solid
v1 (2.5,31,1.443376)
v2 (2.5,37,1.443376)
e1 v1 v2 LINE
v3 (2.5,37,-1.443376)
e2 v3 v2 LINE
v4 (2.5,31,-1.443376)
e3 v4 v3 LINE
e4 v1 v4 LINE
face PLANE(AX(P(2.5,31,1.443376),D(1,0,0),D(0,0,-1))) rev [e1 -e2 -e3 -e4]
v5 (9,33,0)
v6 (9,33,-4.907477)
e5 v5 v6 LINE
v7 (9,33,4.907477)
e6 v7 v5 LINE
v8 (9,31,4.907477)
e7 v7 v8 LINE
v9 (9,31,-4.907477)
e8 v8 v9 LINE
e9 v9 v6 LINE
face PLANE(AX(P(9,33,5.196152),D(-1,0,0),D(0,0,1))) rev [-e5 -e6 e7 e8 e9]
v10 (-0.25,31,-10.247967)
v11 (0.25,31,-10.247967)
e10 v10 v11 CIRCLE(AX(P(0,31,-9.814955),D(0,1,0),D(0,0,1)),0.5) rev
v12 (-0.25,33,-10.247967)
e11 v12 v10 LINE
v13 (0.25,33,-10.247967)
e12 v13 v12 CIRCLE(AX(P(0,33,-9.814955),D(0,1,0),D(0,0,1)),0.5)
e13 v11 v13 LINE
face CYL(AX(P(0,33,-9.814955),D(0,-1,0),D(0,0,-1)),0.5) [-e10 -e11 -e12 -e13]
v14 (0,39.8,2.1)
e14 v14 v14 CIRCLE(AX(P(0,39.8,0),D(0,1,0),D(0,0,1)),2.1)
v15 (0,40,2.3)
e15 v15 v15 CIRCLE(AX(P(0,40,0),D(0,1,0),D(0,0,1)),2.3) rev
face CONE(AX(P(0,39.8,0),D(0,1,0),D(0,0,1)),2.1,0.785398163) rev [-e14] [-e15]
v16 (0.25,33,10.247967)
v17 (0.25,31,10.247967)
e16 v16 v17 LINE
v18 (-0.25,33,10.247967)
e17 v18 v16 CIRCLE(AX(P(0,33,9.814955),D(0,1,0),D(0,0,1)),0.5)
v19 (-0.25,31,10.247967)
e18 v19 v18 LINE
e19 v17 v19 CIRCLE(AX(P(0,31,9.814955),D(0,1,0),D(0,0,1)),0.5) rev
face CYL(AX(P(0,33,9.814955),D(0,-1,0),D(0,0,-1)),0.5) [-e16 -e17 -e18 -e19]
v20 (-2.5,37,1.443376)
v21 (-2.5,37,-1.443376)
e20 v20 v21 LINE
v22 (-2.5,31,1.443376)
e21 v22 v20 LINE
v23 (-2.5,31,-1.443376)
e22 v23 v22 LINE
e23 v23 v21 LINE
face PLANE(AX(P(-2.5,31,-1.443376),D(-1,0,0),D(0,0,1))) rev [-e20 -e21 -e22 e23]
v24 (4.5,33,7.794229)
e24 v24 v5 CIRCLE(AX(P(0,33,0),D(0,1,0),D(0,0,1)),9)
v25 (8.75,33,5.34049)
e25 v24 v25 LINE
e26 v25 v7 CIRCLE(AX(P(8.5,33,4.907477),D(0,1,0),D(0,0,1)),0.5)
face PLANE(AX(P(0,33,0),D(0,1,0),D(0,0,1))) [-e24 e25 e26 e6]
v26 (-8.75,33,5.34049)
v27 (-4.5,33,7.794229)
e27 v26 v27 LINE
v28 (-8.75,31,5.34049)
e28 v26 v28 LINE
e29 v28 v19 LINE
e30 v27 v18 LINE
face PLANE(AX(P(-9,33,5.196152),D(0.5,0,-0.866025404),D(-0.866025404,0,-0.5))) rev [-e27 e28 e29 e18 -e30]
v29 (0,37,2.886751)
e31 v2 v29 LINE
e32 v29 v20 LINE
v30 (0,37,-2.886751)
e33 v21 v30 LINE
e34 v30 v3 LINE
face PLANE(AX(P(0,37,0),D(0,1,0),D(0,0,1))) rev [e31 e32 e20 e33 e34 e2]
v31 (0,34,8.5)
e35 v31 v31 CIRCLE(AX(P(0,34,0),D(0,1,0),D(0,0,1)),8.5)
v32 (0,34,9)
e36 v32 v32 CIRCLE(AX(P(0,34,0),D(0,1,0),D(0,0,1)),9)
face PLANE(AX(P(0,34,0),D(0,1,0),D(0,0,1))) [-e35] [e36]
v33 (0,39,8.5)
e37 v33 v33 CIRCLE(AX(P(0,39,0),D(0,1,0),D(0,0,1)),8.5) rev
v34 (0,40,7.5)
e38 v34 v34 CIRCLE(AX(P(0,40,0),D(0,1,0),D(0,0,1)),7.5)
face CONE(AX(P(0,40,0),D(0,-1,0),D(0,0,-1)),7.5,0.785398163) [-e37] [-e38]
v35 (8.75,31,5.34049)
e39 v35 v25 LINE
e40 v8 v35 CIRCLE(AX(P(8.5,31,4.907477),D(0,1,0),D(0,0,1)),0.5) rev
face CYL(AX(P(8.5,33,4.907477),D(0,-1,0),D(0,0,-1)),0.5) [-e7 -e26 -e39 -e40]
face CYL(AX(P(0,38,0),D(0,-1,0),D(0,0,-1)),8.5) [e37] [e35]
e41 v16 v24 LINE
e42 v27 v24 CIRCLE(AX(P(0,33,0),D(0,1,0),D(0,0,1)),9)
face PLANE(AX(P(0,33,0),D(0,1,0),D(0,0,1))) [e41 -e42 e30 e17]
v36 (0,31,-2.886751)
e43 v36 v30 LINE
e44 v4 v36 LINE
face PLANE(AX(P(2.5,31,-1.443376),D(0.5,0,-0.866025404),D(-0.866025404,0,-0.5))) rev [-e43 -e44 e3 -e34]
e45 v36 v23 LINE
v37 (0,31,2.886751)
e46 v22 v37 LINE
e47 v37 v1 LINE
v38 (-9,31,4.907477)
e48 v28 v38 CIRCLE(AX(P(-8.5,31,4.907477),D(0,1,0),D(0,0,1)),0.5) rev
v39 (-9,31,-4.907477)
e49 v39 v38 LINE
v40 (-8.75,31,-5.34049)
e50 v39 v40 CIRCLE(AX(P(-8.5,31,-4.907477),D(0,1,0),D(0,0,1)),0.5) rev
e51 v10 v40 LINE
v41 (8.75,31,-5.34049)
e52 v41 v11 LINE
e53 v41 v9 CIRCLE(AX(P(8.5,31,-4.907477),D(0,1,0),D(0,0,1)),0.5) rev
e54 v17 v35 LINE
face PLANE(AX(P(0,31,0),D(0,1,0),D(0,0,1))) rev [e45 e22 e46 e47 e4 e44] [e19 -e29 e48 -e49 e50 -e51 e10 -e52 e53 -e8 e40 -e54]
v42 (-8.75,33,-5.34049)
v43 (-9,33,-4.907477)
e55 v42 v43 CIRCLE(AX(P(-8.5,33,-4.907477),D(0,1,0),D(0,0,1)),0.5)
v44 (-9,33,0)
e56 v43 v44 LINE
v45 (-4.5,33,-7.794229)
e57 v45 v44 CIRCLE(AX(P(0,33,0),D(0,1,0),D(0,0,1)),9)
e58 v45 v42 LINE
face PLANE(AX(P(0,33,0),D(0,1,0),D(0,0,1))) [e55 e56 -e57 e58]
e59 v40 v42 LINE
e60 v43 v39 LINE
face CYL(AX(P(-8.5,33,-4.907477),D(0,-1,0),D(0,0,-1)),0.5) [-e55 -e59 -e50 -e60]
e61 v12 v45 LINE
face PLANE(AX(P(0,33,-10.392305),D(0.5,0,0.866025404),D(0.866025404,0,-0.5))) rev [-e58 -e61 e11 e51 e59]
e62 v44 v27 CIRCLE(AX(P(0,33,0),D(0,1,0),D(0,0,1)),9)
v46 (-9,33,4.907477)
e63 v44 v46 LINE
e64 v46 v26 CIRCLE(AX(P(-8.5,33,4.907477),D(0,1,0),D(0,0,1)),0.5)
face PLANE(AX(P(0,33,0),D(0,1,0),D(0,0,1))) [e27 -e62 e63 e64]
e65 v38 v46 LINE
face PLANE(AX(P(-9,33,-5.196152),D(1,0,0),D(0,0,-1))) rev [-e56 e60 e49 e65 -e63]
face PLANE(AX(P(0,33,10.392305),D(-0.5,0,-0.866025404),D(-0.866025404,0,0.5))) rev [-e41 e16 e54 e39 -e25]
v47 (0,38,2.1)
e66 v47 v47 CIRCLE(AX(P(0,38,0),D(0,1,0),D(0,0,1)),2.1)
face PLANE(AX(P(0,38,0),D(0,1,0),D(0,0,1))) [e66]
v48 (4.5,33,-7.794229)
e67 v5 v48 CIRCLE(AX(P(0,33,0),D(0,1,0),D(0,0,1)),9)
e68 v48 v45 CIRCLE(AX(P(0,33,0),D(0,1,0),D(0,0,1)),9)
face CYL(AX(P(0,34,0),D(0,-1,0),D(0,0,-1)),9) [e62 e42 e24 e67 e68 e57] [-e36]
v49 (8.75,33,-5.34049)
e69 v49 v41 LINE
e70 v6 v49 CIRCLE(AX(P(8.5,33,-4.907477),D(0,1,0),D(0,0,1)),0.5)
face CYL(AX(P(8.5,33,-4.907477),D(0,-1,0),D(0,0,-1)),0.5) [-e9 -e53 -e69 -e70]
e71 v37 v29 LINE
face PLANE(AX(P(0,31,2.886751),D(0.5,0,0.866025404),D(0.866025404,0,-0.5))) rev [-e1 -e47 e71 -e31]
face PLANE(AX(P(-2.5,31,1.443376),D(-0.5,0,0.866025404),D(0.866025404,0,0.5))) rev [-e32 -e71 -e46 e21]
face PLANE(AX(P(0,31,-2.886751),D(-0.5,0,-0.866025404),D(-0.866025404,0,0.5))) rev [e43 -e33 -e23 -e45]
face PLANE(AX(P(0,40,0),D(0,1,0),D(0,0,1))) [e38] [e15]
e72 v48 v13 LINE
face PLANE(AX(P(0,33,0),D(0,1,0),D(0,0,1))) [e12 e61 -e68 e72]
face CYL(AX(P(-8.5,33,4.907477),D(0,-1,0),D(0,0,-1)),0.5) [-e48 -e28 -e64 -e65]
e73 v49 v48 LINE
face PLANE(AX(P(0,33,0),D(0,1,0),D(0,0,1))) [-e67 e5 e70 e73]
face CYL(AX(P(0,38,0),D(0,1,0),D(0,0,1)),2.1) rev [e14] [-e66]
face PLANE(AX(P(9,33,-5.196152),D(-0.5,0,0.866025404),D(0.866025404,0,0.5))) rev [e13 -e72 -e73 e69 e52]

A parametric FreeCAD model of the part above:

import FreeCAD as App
import Part
import Sketcher
from FreeCAD import Vector
Q = App.Units.Quantity


def edges_at(feature, points):
    """Names of the edges that pass closest to the given points."""
    edges = feature.Shape.Edges
    near = lambda p: min(range(len(edges)), key=lambda i: edges[i].distToShape(Part.Vertex(*p))[0])
    return sorted({f"Edge{near(p) + 1}" for p in points})


def add_polygon(sketch, points):
    """Adds a closed chain of lines whose ends are joined by coincident constraints."""
    first, n = sketch.GeometryCount, len(points)
    for a, b in zip(points, points[1:] + points[:1]):
        sketch.addGeometry(Part.LineSegment(App.Vector(*a, 0), App.Vector(*b, 0)), False)
    for i in range(n):
        sketch.addConstraint(Sketcher.Constraint("Coincident", first + i, 2, first + (i + 1) % n, 1))

doc = App.newDocument("Part")
body = doc.addObject("PartDesign::Body", "Body")

# Sketch on XZ plane
sketch1 = body.newObject("Sketcher::SketchObject", "Sketch")
sketch1.AttachmentSupport = (doc.getObject("XZ_Plane"), [""])
sketch1.MapMode = "FlatFace"
sketch1.AttachmentOffset = App.Placement(Vector(0, 0, -31), App.Rotation())
add_polygon(sketch1, [(0, -10), (-9, -5), (-9, 5), (0, 10), (9, 5), (9, -5)])  # lines 0-5
sketch1.addConstraint(Sketcher.Constraint("Vertical", 1))
sketch1.addConstraint(Sketcher.Constraint("Vertical", 4))
sketch1.addConstraint(Sketcher.Constraint("Symmetric", 0, 2, 3, 2, -1, 1))
sketch1.addConstraint(Sketcher.Constraint("Symmetric", 2, 2, 5, 2, -1, 1))
sketch1.addConstraint(Sketcher.Constraint("PointOnObject", 2, 2, -2))
sketch1.addConstraint(Sketcher.Constraint("Parallel", 2, 5))
sketch1.addConstraint(Sketcher.Constraint("Horizontal", 1, 2, 3, 2))
sketch1.addConstraint(Sketcher.Constraint("Angle", 0, Q("150 deg")))
sketch1.addConstraint(Sketcher.Constraint("DistanceX", 0, 2, -1, 1, 9.0))
sketch1.addConstraint(Sketcher.Constraint("DistanceY", 1, 1, 1, 2, 10.392305))
pad1 = body.newObject("PartDesign::Pad", "Pad")
pad1.Profile = sketch1
pad1.Length = 2
pad1.Reversed = True
doc.recompute()

fillet = body.newObject("PartDesign::Fillet", "Fillet")
fillet.Base = (pad1, edges_at(pad1, [
    (9, 32, -5.196),
    (9, 32, 5.196),
    (0, 32, 10.392),
    (-9, 32, 5.196),
    (-9, 32, -5.196),
    (0, 32, -10.392),
]))
fillet.Radius = 0.5

# Sketch on XZ plane
sketch2 = body.newObject("Sketcher::SketchObject", "Sketch001")
sketch2.AttachmentSupport = (doc.getObject("XZ_Plane"), [""])
sketch2.MapMode = "FlatFace"
sketch2.AttachmentOffset = App.Placement(Vector(0, 0, -33), App.Rotation())
sketch2.addGeometry(Part.Circle(Vector(0, 0, 0), Vector(0, 0, 1), 9), False)
sketch2.addConstraint(Sketcher.Constraint("Coincident", 0, 3, -1, 1))
sketch2.addConstraint(Sketcher.Constraint("Diameter", 0, 18.0))
pad2 = body.newObject("PartDesign::Pad", "Pad001")
pad2.Profile = sketch2
pad2.Length = 1
pad2.Reversed = True

# Sketch on XZ plane
sketch3 = body.newObject("Sketcher::SketchObject", "Sketch002")
sketch3.AttachmentSupport = (doc.getObject("XZ_Plane"), [""])
sketch3.MapMode = "FlatFace"
sketch3.AttachmentOffset = App.Placement(Vector(0, 0, -34), App.Rotation())
sketch3.addGeometry(Part.Circle(Vector(0, 0, 0), Vector(0, 0, 1), 8), False)
sketch3.addConstraint(Sketcher.Constraint("Coincident", 0, 3, -1, 1))
sketch3.addConstraint(Sketcher.Constraint("Diameter", 0, 17.0))
pad3 = body.newObject("PartDesign::Pad", "Pad002")
pad3.Profile = sketch3
pad3.Length = 4
pad3.Reversed = True

# Sketch on XZ plane
sketch4 = body.newObject("Sketcher::SketchObject", "Sketch003")
sketch4.AttachmentSupport = (doc.getObject("XZ_Plane"), [""])
sketch4.MapMode = "FlatFace"
sketch4.AttachmentOffset = App.Placement(Vector(0, 0, -38), App.Rotation())
add_polygon(sketch4, [(0, -2.9), (-2.5, -1.4), (-2.5, 1.4), (0, 2.9), (2.5, 1.4), (2.5, -1.4)])  # lines 0-5
sketch4.addConstraint(Sketcher.Constraint("Vertical", 1))
sketch4.addConstraint(Sketcher.Constraint("Vertical", 4))
sketch4.addConstraint(Sketcher.Constraint("Symmetric", 0, 2, 3, 2, -1, 1))
sketch4.addConstraint(Sketcher.Constraint("Symmetric", 2, 2, 5, 2, -1, 1))
sketch4.addConstraint(Sketcher.Constraint("PointOnObject", 2, 2, -2))
sketch4.addConstraint(Sketcher.Constraint("Parallel", 2, 5))
sketch4.addConstraint(Sketcher.Constraint("Horizontal", 1, 2, 3, 2))
sketch4.addConstraint(Sketcher.Constraint("Angle", 0, Q("150 deg")))
sketch4.addConstraint(Sketcher.Constraint("DistanceX", 1, 2, 3, 2, 5.0))
sketch4.addConstraint(Sketcher.Constraint("DistanceY", 1, 1, 1, 2, 2.886751))
pocket1 = body.newObject("PartDesign::Pocket", "Pocket")
pocket1.Profile = sketch4
pocket1.Type = "ThroughAll"
pocket1.Reversed = True

# Sketch on XZ plane
sketch5 = body.newObject("Sketcher::SketchObject", "Sketch004")
sketch5.AttachmentSupport = (doc.getObject("XZ_Plane"), [""])
sketch5.MapMode = "FlatFace"
sketch5.AttachmentOffset = App.Placement(Vector(0, 0, -38), App.Rotation())
sketch5.addGeometry(Part.Circle(Vector(0, 0, 0), Vector(0, 0, 1), 8), False)
sketch5.addConstraint(Sketcher.Constraint("Coincident", 0, 3, -1, 1))
sketch5.addConstraint(Sketcher.Constraint("Diameter", 0, 17.0))
pad4 = body.newObject("PartDesign::Pad", "Pad003")
pad4.Profile = sketch5
pad4.Type = "TwoLengths"
pad4.Length = 1
pad4.Length2 = 1
pad4.Reversed = True

# Sketch on XZ plane
sketch6 = body.newObject("Sketcher::SketchObject", "Sketch005")
sketch6.AttachmentSupport = (doc.getObject("XZ_Plane"), [""])
sketch6.MapMode = "FlatFace"
sketch6.AttachmentOffset = App.Placement(Vector(0, 0, -39), App.Rotation())
sketch6.addGeometry(Part.Circle(Vector(0, 0, 0), Vector(0, 0, 1), 8), False)
sketch6.addConstraint(Sketcher.Constraint("Coincident", 0, 3, -1, 1))
sketch6.addConstraint(Sketcher.Constraint("Diameter", 0, 17.0))
pad5 = body.newObject("PartDesign::Pad", "Pad004")
pad5.Profile = sketch6
pad5.Length = 1
pad5.Reversed = True
doc.recompute()

chamfer = body.newObject("PartDesign::Chamfer", "Chamfer")
chamfer.Base = (pad5, edges_at(pad5, [(0, 40, -8.5)]))
chamfer.Size = 1

# Sketch on XZ plane
sketch7 = body.newObject("Sketcher::SketchObject", "Sketch006")
sketch7.AttachmentSupport = (doc.getObject("XZ_Plane"), [""])
sketch7.MapMode = "FlatFace"
sketch7.AttachmentOffset = App.Placement(Vector(0, 0, -40), App.Rotation())
sketch7.addGeometry(Part.Circle(Vector(0, 0, 0), Vector(0, 0, 1), 2.1), False)
sketch7.addConstraint(Sketcher.Constraint("Coincident", 0, 3, -1, 1))
sketch7.addConstraint(Sketcher.Constraint("Diameter", 0, 4.2))
pocket2 = body.newObject("PartDesign::Pocket", "Pocket001")
pocket2.Profile = sketch7
pocket2.Length = 2
pocket2.Reversed = True
doc.recompute()

chamfer2 = body.newObject("PartDesign::Chamfer", "Chamfer001")
chamfer2.Base = (pocket2, edges_at(pocket2, [(0, 40, -2.1)]))
chamfer2.Size = 0.2

doc.recompute()
